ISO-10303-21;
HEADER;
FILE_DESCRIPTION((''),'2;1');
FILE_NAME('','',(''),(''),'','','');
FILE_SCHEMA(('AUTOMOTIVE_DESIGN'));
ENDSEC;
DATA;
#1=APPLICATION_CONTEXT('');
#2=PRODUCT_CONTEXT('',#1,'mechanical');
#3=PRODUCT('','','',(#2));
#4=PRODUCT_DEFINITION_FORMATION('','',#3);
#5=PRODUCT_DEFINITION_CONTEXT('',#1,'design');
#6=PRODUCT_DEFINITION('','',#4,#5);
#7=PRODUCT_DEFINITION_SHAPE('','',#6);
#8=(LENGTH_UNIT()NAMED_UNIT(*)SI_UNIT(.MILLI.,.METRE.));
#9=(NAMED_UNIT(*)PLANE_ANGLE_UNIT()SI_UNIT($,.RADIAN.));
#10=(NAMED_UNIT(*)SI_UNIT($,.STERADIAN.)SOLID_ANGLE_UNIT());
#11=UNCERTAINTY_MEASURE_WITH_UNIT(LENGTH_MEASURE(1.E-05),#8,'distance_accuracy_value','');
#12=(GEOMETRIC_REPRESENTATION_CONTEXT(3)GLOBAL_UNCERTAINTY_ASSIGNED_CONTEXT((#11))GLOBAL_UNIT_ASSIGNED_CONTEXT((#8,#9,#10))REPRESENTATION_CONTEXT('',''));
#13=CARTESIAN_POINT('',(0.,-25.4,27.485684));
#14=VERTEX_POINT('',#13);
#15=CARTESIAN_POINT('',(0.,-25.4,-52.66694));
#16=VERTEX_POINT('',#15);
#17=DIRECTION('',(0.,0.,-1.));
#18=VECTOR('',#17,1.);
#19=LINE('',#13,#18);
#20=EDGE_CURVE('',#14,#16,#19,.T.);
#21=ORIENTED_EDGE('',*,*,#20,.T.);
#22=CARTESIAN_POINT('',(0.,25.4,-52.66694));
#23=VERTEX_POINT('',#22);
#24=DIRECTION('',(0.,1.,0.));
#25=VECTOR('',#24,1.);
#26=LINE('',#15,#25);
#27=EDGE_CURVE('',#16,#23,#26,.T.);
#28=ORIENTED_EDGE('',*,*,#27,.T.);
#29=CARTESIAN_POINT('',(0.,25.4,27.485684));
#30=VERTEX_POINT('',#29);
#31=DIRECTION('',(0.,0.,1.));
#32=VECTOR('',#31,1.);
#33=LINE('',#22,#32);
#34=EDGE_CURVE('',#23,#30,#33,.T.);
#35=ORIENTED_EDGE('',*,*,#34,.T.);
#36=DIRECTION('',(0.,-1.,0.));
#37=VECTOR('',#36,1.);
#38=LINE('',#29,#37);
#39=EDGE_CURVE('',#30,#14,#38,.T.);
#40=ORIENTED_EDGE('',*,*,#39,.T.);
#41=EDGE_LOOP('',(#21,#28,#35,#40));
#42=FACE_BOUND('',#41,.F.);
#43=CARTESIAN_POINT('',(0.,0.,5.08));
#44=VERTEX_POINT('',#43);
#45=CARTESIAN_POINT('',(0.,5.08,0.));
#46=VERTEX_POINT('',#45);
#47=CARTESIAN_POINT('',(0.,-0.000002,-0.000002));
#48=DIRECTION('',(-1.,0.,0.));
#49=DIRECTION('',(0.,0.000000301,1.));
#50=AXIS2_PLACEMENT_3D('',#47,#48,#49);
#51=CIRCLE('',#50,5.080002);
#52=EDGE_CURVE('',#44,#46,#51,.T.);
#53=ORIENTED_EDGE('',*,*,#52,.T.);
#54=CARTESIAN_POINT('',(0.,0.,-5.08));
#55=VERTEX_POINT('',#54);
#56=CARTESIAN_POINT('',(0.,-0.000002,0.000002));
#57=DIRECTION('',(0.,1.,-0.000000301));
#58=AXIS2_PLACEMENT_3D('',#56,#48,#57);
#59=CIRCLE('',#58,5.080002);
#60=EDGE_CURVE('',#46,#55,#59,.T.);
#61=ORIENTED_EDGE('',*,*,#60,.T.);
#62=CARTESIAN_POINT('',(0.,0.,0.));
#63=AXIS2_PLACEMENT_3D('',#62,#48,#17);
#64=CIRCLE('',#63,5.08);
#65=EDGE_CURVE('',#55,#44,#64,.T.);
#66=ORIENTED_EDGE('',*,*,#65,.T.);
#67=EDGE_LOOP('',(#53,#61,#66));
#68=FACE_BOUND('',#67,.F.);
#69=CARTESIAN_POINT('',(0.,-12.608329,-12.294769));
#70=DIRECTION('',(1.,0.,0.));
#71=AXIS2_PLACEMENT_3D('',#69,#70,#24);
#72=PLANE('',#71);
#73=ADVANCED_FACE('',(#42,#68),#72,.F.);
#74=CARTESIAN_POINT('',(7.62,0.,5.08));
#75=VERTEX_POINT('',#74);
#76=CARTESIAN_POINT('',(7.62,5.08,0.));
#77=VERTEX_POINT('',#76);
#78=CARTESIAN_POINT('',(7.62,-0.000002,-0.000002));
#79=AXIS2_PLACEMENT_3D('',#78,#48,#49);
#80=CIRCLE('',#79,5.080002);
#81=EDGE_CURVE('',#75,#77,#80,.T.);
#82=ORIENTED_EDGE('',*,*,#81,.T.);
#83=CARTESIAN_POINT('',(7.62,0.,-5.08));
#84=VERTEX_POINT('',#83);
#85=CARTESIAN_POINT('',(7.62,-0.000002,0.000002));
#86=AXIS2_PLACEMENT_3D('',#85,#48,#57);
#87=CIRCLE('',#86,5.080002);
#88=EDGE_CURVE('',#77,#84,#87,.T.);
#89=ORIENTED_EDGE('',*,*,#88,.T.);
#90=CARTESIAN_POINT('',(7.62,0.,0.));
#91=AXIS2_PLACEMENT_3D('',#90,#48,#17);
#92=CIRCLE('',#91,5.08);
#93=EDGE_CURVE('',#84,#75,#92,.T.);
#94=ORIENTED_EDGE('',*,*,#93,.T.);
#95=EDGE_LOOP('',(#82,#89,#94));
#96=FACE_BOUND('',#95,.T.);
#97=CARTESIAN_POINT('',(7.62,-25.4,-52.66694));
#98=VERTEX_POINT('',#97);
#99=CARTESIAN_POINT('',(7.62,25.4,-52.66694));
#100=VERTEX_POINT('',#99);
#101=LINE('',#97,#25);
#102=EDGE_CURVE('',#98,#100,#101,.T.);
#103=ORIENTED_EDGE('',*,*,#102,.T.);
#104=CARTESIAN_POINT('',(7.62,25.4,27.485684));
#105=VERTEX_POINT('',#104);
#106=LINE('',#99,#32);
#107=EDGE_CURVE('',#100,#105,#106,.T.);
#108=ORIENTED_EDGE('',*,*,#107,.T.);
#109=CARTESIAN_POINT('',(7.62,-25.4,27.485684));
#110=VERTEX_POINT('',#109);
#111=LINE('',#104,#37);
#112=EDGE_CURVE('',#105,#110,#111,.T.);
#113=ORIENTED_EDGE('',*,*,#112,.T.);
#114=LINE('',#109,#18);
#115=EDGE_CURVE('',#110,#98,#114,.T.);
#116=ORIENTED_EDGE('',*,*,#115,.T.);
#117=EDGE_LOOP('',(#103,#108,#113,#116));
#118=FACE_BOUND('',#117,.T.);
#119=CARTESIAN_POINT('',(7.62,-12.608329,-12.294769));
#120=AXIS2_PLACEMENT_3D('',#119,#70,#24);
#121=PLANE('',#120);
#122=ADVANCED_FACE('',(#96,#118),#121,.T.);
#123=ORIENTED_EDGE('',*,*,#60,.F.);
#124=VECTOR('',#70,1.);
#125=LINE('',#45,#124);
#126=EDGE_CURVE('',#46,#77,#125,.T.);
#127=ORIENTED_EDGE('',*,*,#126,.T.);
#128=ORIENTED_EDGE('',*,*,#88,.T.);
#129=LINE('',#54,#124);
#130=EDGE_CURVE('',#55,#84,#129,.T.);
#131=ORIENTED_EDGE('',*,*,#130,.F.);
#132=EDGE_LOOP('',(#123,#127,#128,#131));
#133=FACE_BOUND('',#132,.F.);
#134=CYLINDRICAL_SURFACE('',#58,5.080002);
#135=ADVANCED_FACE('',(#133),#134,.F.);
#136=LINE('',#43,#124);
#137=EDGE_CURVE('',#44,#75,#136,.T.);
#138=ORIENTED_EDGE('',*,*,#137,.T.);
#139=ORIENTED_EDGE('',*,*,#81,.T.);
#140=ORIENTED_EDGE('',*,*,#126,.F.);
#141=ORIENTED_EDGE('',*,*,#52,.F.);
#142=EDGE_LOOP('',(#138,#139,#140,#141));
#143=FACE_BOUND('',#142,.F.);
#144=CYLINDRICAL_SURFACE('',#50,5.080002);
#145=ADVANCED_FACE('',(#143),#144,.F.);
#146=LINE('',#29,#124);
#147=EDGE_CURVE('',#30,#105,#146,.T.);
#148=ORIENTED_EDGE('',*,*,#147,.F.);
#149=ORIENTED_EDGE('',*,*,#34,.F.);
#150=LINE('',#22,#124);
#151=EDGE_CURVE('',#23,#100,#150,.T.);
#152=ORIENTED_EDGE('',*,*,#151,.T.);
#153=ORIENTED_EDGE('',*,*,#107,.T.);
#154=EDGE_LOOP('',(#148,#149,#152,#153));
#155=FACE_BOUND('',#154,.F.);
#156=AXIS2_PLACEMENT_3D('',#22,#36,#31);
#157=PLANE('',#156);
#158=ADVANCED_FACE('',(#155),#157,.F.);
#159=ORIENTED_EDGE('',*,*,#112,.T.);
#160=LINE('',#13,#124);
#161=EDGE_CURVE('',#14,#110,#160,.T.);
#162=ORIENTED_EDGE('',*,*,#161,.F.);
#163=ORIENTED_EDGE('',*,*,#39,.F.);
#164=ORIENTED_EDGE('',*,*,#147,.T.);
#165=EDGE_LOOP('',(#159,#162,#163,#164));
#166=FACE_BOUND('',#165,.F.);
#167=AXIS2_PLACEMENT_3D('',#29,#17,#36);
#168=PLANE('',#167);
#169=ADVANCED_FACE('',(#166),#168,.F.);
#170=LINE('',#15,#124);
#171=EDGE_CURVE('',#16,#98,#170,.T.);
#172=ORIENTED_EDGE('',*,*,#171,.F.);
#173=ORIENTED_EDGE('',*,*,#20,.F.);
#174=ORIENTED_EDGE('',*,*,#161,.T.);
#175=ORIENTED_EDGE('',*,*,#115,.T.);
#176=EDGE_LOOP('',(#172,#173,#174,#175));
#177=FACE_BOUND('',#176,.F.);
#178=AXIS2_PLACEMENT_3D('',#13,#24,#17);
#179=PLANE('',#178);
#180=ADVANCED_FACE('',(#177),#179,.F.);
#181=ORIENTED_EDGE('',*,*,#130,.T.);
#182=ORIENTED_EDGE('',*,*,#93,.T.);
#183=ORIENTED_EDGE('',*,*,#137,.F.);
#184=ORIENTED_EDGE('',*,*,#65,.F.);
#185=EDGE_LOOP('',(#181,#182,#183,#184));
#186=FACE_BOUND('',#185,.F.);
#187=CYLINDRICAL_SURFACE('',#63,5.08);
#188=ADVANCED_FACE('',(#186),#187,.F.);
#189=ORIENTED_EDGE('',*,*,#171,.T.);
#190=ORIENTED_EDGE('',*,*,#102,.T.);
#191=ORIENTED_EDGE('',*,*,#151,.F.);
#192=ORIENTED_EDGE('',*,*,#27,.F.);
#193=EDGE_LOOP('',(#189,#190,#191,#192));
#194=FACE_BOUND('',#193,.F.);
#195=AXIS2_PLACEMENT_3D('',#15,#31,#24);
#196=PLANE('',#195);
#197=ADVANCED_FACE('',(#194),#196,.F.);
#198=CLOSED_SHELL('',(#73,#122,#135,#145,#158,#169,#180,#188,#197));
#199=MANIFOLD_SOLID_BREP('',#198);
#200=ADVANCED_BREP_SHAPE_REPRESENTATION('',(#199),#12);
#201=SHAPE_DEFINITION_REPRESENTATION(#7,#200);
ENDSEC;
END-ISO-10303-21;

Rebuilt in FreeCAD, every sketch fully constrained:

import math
import FreeCAD as App
import Part
import Sketcher
Q = App.Units.Quantity

doc = App.newDocument("Part")
params = doc.addObject("Spreadsheet::Sheet", "Params")
for row, (alias, value) in enumerate([
    ("sketch1_radius", "0.2 in"),
    ("sketch1_width", "2 in"),
    ("pad1_length", "0.3 in"),
], start=1):
    params.set(f"A{row}", alias)
    params.set(f"B{row}", "=" + value)
    params.setAlias(f"B{row}", alias)

body = doc.addObject("PartDesign::Body", "Body")

sketch1 = body.newObject("Sketcher::SketchObject", "Sketch")
sketch1.AttachmentSupport = (doc.getObject("YZ_Plane"), [""])
sketch1.MapMode = "FlatFace"
sketch1.addGeometry(Part.LineSegment(App.Vector(-25, 27, 0), App.Vector(-25, -53, 0)), False)
sketch1.addGeometry(Part.LineSegment(App.Vector(-25, -53, 0), App.Vector(25, -53, 0)), False)
sketch1.addGeometry(Part.LineSegment(App.Vector(25, -53, 0), App.Vector(25, 27, 0)), False)
sketch1.addGeometry(Part.LineSegment(App.Vector(25, 27, 0), App.Vector(-25, 27, 0)), False)
sketch1.addGeometry(Part.ArcOfCircle(Part.Circle(App.Vector(0, 0, 0), App.Vector(0, 0, 1), 5), math.radians(90), math.radians(270)), False)
sketch1.addGeometry(Part.ArcOfCircle(Part.Circle(App.Vector(0, 0, 0), App.Vector(0, 0, 1), 5), math.radians(0), math.radians(90)), False)
sketch1.addGeometry(Part.ArcOfCircle(Part.Circle(App.Vector(0, 0, 0), App.Vector(0, 0, 1), 5), math.radians(-90), math.radians(0)), False)
sketch1.addConstraint(Sketcher.Constraint("Coincident", 0, 2, 1, 1))
sketch1.addConstraint(Sketcher.Constraint("Coincident", 1, 2, 2, 1))
sketch1.addConstraint(Sketcher.Constraint("Coincident", 2, 2, 3, 1))
sketch1.addConstraint(Sketcher.Constraint("Coincident", 3, 2, 0, 1))
sketch1.addConstraint(Sketcher.Constraint("Tangent", 4, 1, 5, 2))
sketch1.addConstraint(Sketcher.Constraint("Tangent", 5, 1, 6, 2))
sketch1.addConstraint(Sketcher.Constraint("Tangent", 6, 1, 4, 2))
sketch1.addConstraint(Sketcher.Constraint("Vertical", 0))
sketch1.addConstraint(Sketcher.Constraint("Horizontal", 1))
sketch1.addConstraint(Sketcher.Constraint("Vertical", 2))
sketch1.addConstraint(Sketcher.Constraint("Horizontal", 3))
sketch1.addConstraint(Sketcher.Constraint("Coincident", 4, 3, -1, 1))
sketch1.addConstraint(Sketcher.Constraint("PointOnObject", 4, 1, -2))
sketch1.addConstraint(Sketcher.Constraint("PointOnObject", 5, 1, -1))
sketch1.addConstraint(Sketcher.Constraint("PointOnObject", 6, 1, -2))
sketch1.addConstraint(Sketcher.Constraint("Radius", 4, Q("0.2 in")))
sketch1.addConstraint(Sketcher.Constraint("DistanceX", 1, 1, 1, 2, Q("2 in")))
sketch1.addConstraint(Sketcher.Constraint("DistanceX", 0, 2, -1, 1, Q("1 in")))
sketch1.addConstraint(Sketcher.Constraint("DistanceY", 0, 2, 0, 1, 80.152624))
sketch1.addConstraint(Sketcher.Constraint("DistanceY", 0, 2, -1, 1, 52.66694))
sketch1.setExpression("Constraints[15]", "Params.sketch1_radius")
sketch1.setExpression("Constraints[16]", "Params.sketch1_width")
pad1 = body.newObject("PartDesign::Pad", "Pad")
pad1.Profile = sketch1
pad1.setExpression("Length", "Params.pad1_length")

doc.recompute()
